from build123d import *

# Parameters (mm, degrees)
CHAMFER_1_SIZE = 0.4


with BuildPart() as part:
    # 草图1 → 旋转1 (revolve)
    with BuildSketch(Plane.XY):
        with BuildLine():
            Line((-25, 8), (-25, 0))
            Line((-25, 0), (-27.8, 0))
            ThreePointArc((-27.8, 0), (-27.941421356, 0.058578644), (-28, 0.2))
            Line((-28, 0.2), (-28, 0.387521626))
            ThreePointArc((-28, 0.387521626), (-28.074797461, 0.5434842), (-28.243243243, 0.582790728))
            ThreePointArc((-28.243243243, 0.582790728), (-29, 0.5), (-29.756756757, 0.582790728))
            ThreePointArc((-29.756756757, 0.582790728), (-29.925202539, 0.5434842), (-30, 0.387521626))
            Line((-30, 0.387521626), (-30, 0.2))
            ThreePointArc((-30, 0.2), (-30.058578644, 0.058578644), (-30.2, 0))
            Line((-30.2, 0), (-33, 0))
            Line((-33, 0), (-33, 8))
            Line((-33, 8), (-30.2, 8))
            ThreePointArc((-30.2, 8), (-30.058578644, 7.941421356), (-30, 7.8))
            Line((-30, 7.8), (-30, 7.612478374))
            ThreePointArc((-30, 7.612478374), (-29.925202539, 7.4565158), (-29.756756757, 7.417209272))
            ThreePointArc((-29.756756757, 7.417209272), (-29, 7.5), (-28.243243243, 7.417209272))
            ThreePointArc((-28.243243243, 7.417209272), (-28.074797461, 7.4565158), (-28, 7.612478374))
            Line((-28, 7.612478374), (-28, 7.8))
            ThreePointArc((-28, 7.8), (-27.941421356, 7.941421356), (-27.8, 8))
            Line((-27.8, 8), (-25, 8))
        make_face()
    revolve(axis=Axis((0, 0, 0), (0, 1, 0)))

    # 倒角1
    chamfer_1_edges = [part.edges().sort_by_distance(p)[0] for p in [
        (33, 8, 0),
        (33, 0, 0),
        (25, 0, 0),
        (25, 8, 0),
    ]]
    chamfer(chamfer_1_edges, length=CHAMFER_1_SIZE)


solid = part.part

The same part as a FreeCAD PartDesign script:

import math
import FreeCAD as App
import Part
import Sketcher


def edges_at(feature, points):
    """Names of the edges that pass closest to the given points."""
    edges = feature.Shape.Edges
    near = lambda p: min(range(len(edges)), key=lambda i: edges[i].distToShape(Part.Vertex(*p))[0])
    return sorted({f"Edge{near(p) + 1}" for p in points})

doc = App.newDocument("Part")
body = doc.addObject("PartDesign::Body", "Body")

# Sketch on XY plane
sketch1 = body.newObject("Sketcher::SketchObject", "Sketch")
sketch1.AttachmentSupport = (doc.getObject("XY_Plane"), [""])
sketch1.MapMode = "FlatFace"
sketch1.addGeometry(Part.LineSegment(App.Vector(-25, 0, 0), App.Vector(-25, 8, 0)), False)
sketch1.addGeometry(Part.LineSegment(App.Vector(-25, 8, 0), App.Vector(-27.8, 8, 0)), False)
sketch1.addGeometry(Part.ArcOfCircle(Part.Circle(App.Vector(-27.8, 7.8, 0), App.Vector(0, 0, 1), 0.2), math.radians(90), math.radians(180)), False)
sketch1.addGeometry(Part.LineSegment(App.Vector(-28, 7.8, 0), App.Vector(-28, 7.61, 0)), False)
sketch1.addGeometry(Part.ArcOfCircle(Part.Circle(App.Vector(-28.2, 7.61, 0), App.Vector(0, 0, 1), 0.2), math.radians(-102), math.radians(0)), False)
sketch1.addGeometry(Part.ArcOfCircle(Part.Circle(App.Vector(-29, 4, 0), App.Vector(0, 0, 1), 3.5), math.radians(78), math.radians(102)), False)
sketch1.addGeometry(Part.ArcOfCircle(Part.Circle(App.Vector(-29.8, 7.61, 0), App.Vector(0, 0, 1), 0.2), math.radians(180), math.radians(282)), False)
sketch1.addGeometry(Part.LineSegment(App.Vector(-30, 7.61, 0), App.Vector(-30, 7.8, 0)), False)
sketch1.addGeometry(Part.ArcOfCircle(Part.Circle(App.Vector(-30.2, 7.8, 0), App.Vector(0, 0, 1), 0.2), math.radians(0), math.radians(90)), False)
sketch1.addGeometry(Part.LineSegment(App.Vector(-30.2, 8, 0), App.Vector(-33, 8, 0)), False)
sketch1.addGeometry(Part.LineSegment(App.Vector(-33, 8, 0), App.Vector(-33, 0, 0)), False)
sketch1.addGeometry(Part.LineSegment(App.Vector(-33, 0, 0), App.Vector(-30.2, 0, 0)), False)
sketch1.addGeometry(Part.ArcOfCircle(Part.Circle(App.Vector(-30.2, 0.2, 0), App.Vector(0, 0, 1), 0.2), math.radians(-90), math.radians(0)), False)
sketch1.addGeometry(Part.LineSegment(App.Vector(-30, 0.2, 0), App.Vector(-30, 0.39, 0)), False)
sketch1.addGeometry(Part.ArcOfCircle(Part.Circle(App.Vector(-29.8, 0.39, 0), App.Vector(0, 0, 1), 0.2), math.radians(78), math.radians(180)), False)
sketch1.addGeometry(Part.ArcOfCircle(Part.Circle(App.Vector(-29, 4, 0), App.Vector(0, 0, 1), 3.5), math.radians(-102), math.radians(-78)), False)
sketch1.addGeometry(Part.ArcOfCircle(Part.Circle(App.Vector(-28.2, 0.39, 0), App.Vector(0, 0, 1), 0.2), math.radians(0), math.radians(102)), False)
sketch1.addGeometry(Part.LineSegment(App.Vector(-28, 0.39, 0), App.Vector(-28, 0.2, 0)), False)
sketch1.addGeometry(Part.ArcOfCircle(Part.Circle(App.Vector(-27.8, 0.2, 0), App.Vector(0, 0, 1), 0.2), math.radians(-180), math.radians(-90)), False)
sketch1.addGeometry(Part.LineSegment(App.Vector(-27.8, 0, 0), App.Vector(-25, 0, 0)), False)
sketch1.addConstraint(Sketcher.Constraint("Coincident", 0, 2, 1, 1))
sketch1.addConstraint(Sketcher.Constraint("Tangent", 1, 2, 2, 1))
sketch1.addConstraint(Sketcher.Constraint("Tangent", 2, 2, 3, 1))
sketch1.addConstraint(Sketcher.Constraint("Tangent", 3, 2, 4, 2))
sketch1.addConstraint(Sketcher.Constraint("Tangent", 4, 1, 5, 1))
sketch1.addConstraint(Sketcher.Constraint("Tangent", 5, 2, 6, 2))
sketch1.addConstraint(Sketcher.Constraint("Tangent", 6, 1, 7, 1))
sketch1.addConstraint(Sketcher.Constraint("Tangent", 7, 2, 8, 1))
sketch1.addConstraint(Sketcher.Constraint("Tangent", 8, 2, 9, 1))
sketch1.addConstraint(Sketcher.Constraint("Coincident", 9, 2, 10, 1))
sketch1.addConstraint(Sketcher.Constraint("Coincident", 10, 2, 11, 1))
sketch1.addConstraint(Sketcher.Constraint("Tangent", 11, 2, 12, 1))
sketch1.addConstraint(Sketcher.Constraint("Tangent", 12, 2, 13, 1))
sketch1.addConstraint(Sketcher.Constraint("Tangent", 13, 2, 14, 2))
sketch1.addConstraint(Sketcher.Constraint("Tangent", 14, 1, 15, 1))
sketch1.addConstraint(Sketcher.Constraint("Tangent", 15, 2, 16, 2))
sketch1.addConstraint(Sketcher.Constraint("Tangent", 16, 1, 17, 1))
sketch1.addConstraint(Sketcher.Constraint("Tangent", 17, 2, 18, 1))
sketch1.addConstraint(Sketcher.Constraint("Tangent", 18, 2, 19, 1))
sketch1.addConstraint(Sketcher.Constraint("Coincident", 19, 2, 0, 1))
sketch1.addConstraint(Sketcher.Constraint("Vertical", 0))
sketch1.addConstraint(Sketcher.Constraint("Horizontal", 1))
sketch1.addConstraint(Sketcher.Constraint("Vertical", 3))
sketch1.addConstraint(Sketcher.Constraint("Vertical", 7))
sketch1.addConstraint(Sketcher.Constraint("Horizontal", 9))
sketch1.addConstraint(Sketcher.Constraint("Vertical", 10))
sketch1.addConstraint(Sketcher.Constraint("Horizontal", 11))
sketch1.addConstraint(Sketcher.Constraint("Vertical", 13))
sketch1.addConstraint(Sketcher.Constraint("Vertical", 17))
sketch1.addConstraint(Sketcher.Constraint("Horizontal", 19))
sketch1.addConstraint(Sketcher.Constraint("Coincident", 15, 3, 5, 3))
sketch1.addConstraint(Sketcher.Constraint("Equal", 2, 4))
sketch1.addConstraint(Sketcher.Constraint("Equal", 4, 6))
sketch1.addConstraint(Sketcher.Constraint("Equal", 6, 8))
sketch1.addConstraint(Sketcher.Constraint("Equal", 8, 12))
sketch1.addConstraint(Sketcher.Constraint("Equal", 12, 14))
sketch1.addConstraint(Sketcher.Constraint("Equal", 5, 15))
sketch1.addConstraint(Sketcher.Constraint("Equal", 14, 16))
sketch1.addConstraint(Sketcher.Constraint("Equal", 16, 18))
sketch1.addConstraint(Sketcher.Constraint("PointOnObject", 10, 2, -1))
sketch1.addConstraint(Sketcher.Constraint("PointOnObject", 18, 2, -1))
sketch1.addConstraint(Sketcher.Constraint("Horizontal", 4, 3, 6, 3))
sketch1.addConstraint(Sketcher.Constraint("Horizontal", 2, 3, 8, 3))
sketch1.addConstraint(Sketcher.Constraint("Horizontal", 14, 3, 16, 3))
sketch1.addConstraint(Sketcher.Constraint("Vertical", 8, 3, 12, 3))
sketch1.addConstraint(Sketcher.Constraint("Equal", 1, 9))
sketch1.addConstraint(Sketcher.Constraint("Equal", 7, 13))
sketch1.addConstraint(Sketcher.Constraint("Radius", 2, 0.2))
sketch1.addConstraint(Sketcher.Constraint("Radius", 5, 3.5))
sketch1.addConstraint(Sketcher.Constraint("DistanceY", 0, 1, 0, 2, 8.0))
sketch1.addConstraint(Sketcher.Constraint("DistanceX", 1, 2, 1, 1, 2.8))
sketch1.addConstraint(Sketcher.Constraint("DistanceX", 5, 3, -1, 1, 29.0))
sketch1.addConstraint(Sketcher.Constraint("DistanceX", 0, 2, -1, 1, 25.0))
revolution = body.newObject("PartDesign::Revolution", "Revolution")
revolution.Profile = sketch1
revolution.ReferenceAxis = (sketch1, ["V_Axis"])
revolution.Angle = 360
doc.recompute()

chamfer = body.newObject("PartDesign::Chamfer", "Chamfer")
chamfer.Base = (revolution, edges_at(revolution, [
    (33, 8, 0),
    (33, 0, 0),
    (25, 0, 0),
    (25, 8, 0),
]))
chamfer.Size = 0.4

doc.recompute()
